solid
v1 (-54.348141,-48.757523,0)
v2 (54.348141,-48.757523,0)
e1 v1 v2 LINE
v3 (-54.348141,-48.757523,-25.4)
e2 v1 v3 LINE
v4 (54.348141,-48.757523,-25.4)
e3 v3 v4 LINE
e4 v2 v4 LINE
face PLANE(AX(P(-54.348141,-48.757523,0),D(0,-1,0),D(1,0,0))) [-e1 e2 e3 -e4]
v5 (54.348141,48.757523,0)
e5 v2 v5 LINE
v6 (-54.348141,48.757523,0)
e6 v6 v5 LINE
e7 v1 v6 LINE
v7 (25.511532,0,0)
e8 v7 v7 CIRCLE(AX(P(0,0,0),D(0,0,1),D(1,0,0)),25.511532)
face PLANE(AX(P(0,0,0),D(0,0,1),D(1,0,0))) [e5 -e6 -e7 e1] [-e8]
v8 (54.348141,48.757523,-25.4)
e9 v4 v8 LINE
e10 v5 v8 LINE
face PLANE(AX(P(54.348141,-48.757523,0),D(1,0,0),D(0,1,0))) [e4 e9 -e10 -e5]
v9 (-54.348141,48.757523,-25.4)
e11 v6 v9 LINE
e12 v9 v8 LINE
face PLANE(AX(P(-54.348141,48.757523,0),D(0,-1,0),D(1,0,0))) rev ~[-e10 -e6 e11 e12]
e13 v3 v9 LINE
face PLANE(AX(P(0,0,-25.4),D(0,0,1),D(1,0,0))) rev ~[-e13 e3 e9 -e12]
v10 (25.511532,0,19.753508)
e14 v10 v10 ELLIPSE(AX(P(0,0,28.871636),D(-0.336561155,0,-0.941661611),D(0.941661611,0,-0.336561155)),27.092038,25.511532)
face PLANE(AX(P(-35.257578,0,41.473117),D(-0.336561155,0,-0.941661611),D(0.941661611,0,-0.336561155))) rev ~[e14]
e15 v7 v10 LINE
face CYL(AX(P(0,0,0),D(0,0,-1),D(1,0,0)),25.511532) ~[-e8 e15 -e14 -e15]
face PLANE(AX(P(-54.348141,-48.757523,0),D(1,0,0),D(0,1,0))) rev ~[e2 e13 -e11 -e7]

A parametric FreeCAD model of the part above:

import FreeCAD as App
import Part
import Sketcher

V = App.Vector
Q = App.Units.Quantity


def add_polygon(sketch, points):
    """Adds a closed chain of lines whose ends are joined by coincident constraints."""
    first, n = sketch.GeometryCount, len(points)
    for a, b in zip(points, points[1:] + points[:1]):
        sketch.addGeometry(Part.LineSegment(App.Vector(*a, 0), App.Vector(*b, 0)), False)
    for i in range(n):
        sketch.addConstraint(Sketcher.Constraint("Coincident", first + i, 2, first + (i + 1) % n, 1))

doc = App.newDocument("Part")
body = doc.addObject("PartDesign::Body", "Body")

sketch1 = body.newObject("Sketcher::SketchObject", "Sketch")
sketch1.AttachmentSupport = (doc.getObject("XY_Plane"), [""])
sketch1.MapMode = "FlatFace"
add_polygon(sketch1, [(-54, 49), (-54, -49), (54, -49), (54, 49)])
sketch1.addConstraint(Sketcher.Constraint("Vertical", 0))
sketch1.addConstraint(Sketcher.Constraint("Horizontal", 1))
sketch1.addConstraint(Sketcher.Constraint("Vertical", 2))
sketch1.addConstraint(Sketcher.Constraint("Horizontal", 3))
sketch1.addConstraint(Sketcher.Constraint("Symmetric", 0, 2, 2, 2, -1, 1))
sketch1.addConstraint(Sketcher.Constraint("DistanceX", 1, 1, 1, 2, Q("108.696282 mm")))
sketch1.addConstraint(Sketcher.Constraint("DistanceY", 0, 2, 0, 1, Q("97.515046 mm")))
pad1 = body.newObject("PartDesign::Pad", "Pad")
pad1.Profile = sketch1
pad1.Length = Q("1 in")
pad1.Reversed = True

sketch2 = body.newObject("Sketcher::SketchObject", "Sketch001")
sketch2.AttachmentSupport = (doc.getObject("XY_Plane"), [""])
sketch2.MapMode = "FlatFace"
sketch2.addGeometry(Part.Circle(V(0, 0, 0), V(0, 0, 1), 26), False)
sketch2.addConstraint(Sketcher.Constraint("Coincident", 0, 3, -1, 1))
sketch2.addConstraint(Sketcher.Constraint("Diameter", 0, Q("51.023064 mm")))
pad2 = body.newObject("PartDesign::Pad", "Pad001")
pad2.Profile = sketch2
pad2.Length = Q("1.5 in")

sketch3 = body.newObject("Sketcher::SketchObject", "Sketch002")
sketch3.AttachmentSupport = (doc.getObject("XZ_Plane"), [""])
sketch3.MapMode = "FlatFace"
add_polygon(sketch3, [(26, 41), (-35, 41), (26, 20)])
sketch3.addConstraint(Sketcher.Constraint("Horizontal", 0))
sketch3.addConstraint(Sketcher.Constraint("DistanceY", -1, 1, 0, 2, Q("1.6327999 in")))
sketch3.addConstraint(Sketcher.Constraint("DistanceX", 0, 2, 0, 1, Q("61.12043 mm")))
sketch3.addConstraint(Sketcher.Constraint("Distance", 1, Q("64.625319 mm")))
sketch3.addConstraint(Sketcher.Constraint("Distance", 2, Q("21.751989 mm")))
sketch3.addConstraint(Sketcher.Constraint("DistanceX", 0, 2, -1, 1, Q("35.257578 mm")))
pocket1 = body.newObject("PartDesign::Pocket", "Pocket")
pocket1.Profile = sketch3
pocket1.Length = Q("5 in")
pocket1.Midplane = True

doc.recompute()
